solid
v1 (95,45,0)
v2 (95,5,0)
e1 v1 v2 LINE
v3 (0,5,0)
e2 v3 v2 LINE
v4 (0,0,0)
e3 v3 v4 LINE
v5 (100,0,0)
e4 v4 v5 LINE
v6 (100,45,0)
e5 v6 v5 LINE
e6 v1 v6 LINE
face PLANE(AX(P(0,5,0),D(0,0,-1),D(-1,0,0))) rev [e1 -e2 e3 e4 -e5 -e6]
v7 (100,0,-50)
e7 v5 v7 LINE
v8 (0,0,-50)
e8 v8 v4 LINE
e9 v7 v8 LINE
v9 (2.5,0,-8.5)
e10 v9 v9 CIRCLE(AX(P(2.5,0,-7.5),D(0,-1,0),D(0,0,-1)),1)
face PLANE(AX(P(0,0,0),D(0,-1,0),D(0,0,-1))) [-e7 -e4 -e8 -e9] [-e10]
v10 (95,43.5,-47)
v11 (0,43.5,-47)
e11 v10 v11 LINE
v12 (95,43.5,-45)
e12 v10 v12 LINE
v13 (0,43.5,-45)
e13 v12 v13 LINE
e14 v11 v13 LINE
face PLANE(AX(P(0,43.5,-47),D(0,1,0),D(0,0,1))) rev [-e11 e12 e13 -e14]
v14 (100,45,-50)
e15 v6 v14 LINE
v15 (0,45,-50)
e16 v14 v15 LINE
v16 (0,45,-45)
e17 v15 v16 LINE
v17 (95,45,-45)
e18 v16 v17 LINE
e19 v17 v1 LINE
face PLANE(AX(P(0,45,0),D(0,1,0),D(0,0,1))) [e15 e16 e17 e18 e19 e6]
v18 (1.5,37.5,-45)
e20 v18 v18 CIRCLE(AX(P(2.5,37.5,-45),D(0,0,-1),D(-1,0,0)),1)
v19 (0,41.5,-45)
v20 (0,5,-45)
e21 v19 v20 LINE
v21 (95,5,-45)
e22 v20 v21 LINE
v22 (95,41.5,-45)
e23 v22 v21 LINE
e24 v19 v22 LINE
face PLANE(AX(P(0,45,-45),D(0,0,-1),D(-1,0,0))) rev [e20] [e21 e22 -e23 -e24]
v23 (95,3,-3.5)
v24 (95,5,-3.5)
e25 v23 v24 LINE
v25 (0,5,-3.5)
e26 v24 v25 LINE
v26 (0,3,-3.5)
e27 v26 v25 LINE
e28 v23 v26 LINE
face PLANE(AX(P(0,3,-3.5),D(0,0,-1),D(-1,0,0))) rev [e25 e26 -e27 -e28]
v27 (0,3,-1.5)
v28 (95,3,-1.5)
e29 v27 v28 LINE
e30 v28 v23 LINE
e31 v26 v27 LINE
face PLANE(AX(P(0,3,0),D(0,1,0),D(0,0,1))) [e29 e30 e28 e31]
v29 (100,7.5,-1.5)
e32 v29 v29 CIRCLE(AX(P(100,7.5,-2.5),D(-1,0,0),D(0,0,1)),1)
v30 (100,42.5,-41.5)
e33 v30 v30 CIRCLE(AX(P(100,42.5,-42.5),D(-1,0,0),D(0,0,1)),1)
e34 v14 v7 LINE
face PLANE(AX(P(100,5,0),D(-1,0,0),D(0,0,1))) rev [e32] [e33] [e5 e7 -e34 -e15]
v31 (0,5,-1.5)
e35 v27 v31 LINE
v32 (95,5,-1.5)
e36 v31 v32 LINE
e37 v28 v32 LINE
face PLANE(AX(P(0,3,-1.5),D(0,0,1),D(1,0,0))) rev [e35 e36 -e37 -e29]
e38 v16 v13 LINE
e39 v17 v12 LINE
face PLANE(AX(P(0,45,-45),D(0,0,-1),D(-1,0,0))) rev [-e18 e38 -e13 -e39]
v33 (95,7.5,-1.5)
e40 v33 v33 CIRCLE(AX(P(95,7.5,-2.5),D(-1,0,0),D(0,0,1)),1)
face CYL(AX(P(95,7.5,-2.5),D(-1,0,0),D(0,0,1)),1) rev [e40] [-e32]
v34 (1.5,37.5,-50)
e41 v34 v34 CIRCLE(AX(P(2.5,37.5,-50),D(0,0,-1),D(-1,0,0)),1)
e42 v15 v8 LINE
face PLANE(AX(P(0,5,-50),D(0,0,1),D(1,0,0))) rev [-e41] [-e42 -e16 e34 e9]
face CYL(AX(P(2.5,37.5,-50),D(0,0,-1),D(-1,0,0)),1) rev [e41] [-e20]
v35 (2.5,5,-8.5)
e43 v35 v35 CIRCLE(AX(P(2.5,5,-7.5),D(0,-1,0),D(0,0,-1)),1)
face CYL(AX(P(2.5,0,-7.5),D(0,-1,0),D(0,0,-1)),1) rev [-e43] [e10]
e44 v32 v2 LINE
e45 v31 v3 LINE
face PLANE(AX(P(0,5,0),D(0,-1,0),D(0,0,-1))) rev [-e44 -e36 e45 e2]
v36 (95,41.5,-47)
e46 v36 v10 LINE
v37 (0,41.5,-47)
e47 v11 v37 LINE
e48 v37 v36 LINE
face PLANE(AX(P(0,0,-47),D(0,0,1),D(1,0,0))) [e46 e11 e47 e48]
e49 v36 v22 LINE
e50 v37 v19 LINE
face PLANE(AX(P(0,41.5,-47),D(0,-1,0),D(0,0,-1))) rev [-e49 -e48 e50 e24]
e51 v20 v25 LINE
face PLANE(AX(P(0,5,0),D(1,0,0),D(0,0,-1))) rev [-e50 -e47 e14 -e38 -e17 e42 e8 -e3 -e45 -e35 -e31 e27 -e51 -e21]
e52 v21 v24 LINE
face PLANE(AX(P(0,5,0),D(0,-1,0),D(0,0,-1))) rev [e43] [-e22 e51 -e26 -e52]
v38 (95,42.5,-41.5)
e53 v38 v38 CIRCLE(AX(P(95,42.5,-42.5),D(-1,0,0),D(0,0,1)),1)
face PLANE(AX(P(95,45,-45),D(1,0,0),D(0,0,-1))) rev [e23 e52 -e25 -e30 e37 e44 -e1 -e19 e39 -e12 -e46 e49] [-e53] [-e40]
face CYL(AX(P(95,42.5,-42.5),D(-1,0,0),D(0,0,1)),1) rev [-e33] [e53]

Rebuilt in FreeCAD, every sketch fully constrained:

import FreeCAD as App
import Part
import Sketcher

V = App.Vector

doc = App.newDocument("Part")
params = doc.addObject("Spreadsheet::Sheet", "Params")
for row, (alias, value) in enumerate([
    ("sketch1_width", "100 mm"),
    ("sketch1_height", "50 mm"),
    ("pad1_length", "5 mm"),
    ("sketch2_width", "95 mm"),
    ("sketch2_width2", "5 mm"),
    ("sketch2_height", "45 mm"),
    ("pad2_length", "40 mm"),
    ("sketch3_width", "95 mm"),
    ("sketch3_height", "2 mm"),
    ("pocket1_length", "2 mm"),
    ("sketch4_width", "95 mm"),
    ("sketch4_height", "2 mm"),
    ("pocket2_length", "2 mm"),
    ("sketch5_diameter", "2 mm"),
    ("hole_diameter", "2 mm"),
    ("sketch6_diameter", "2 mm"),
    ("hole2_diameter", "2 mm"),
    ("hole2_depth", "10 mm"),
    ("sketch7_diameter", "2 mm"),
    ("hole3_diameter", "2 mm"),
    ("hole3_depth", "10 mm"),
], start=1):
    params.set(f"A{row}", alias)
    params.set(f"B{row}", "=" + value)
    params.setAlias(f"B{row}", alias)

body = doc.addObject("PartDesign::Body", "Body")

sketch1 = doc.addObject("Sketcher::SketchObject", "Sketch")
body.addObject(sketch1)
sketch1.AttachmentSupport = (doc.XZ_Plane, [""])
sketch1.MapMode = "FlatFace"
sketch1.addGeometry(Part.LineSegment(V(0, -50, 0), V(0, 0, 0)), False)
sketch1.addGeometry(Part.LineSegment(V(0, 0, 0), V(100, 0, 0)), False)
sketch1.addGeometry(Part.LineSegment(V(100, 0, 0), V(100, -50, 0)), False)
sketch1.addGeometry(Part.LineSegment(V(100, -50, 0), V(0, -50, 0)), False)
sketch1.addConstraint(Sketcher.Constraint("Coincident", 0, 2, 1, 1))
sketch1.addConstraint(Sketcher.Constraint("Coincident", 1, 2, 2, 1))
sketch1.addConstraint(Sketcher.Constraint("Coincident", 2, 2, 3, 1))
sketch1.addConstraint(Sketcher.Constraint("Coincident", 3, 2, 0, 1))
sketch1.addConstraint(Sketcher.Constraint("Vertical", 0))
sketch1.addConstraint(Sketcher.Constraint("Horizontal", 1))
sketch1.addConstraint(Sketcher.Constraint("Vertical", 2))
sketch1.addConstraint(Sketcher.Constraint("Horizontal", 3))
sketch1.addConstraint(Sketcher.Constraint("Coincident", 0, 2, -1, 1))
sketch1.addConstraint(Sketcher.Constraint("DistanceX", 1, 1, 1, 2, 100.0))
sketch1.addConstraint(Sketcher.Constraint("DistanceY", 0, 1, 0, 2, 50.0))
sketch1.setExpression("Constraints[9]", "Params.sketch1_width")
sketch1.setExpression("Constraints[10]", "Params.sketch1_height")
pad1 = doc.addObject("PartDesign::Pad", "Pad")
body.addObject(pad1)
pad1.Profile = sketch1
pad1.setExpression("Length", "Params.pad1_length")
pad1.Reversed = True

sketch2 = doc.addObject("Sketcher::SketchObject", "Sketch001")
body.addObject(sketch2)
sketch2.AttachmentSupport = (doc.XZ_Plane, [""])
sketch2.MapMode = "FlatFace"
sketch2.AttachmentOffset = App.Placement(V(0, 0, -5), App.Rotation())
sketch2.addGeometry(Part.LineSegment(V(0, -45, 0), V(95, -45, 0)), False)
sketch2.addGeometry(Part.LineSegment(V(95, -45, 0), V(95, 0, 0)), False)
sketch2.addGeometry(Part.LineSegment(V(95, 0, 0), V(100, 0, 0)), False)
sketch2.addGeometry(Part.LineSegment(V(100, 0, 0), V(100, -50, 0)), False)
sketch2.addGeometry(Part.LineSegment(V(100, -50, 0), V(0, -50, 0)), False)
sketch2.addGeometry(Part.LineSegment(V(0, -50, 0), V(0, -45, 0)), False)
sketch2.addConstraint(Sketcher.Constraint("Coincident", 0, 2, 1, 1))
sketch2.addConstraint(Sketcher.Constraint("Coincident", 1, 2, 2, 1))
sketch2.addConstraint(Sketcher.Constraint("Coincident", 2, 2, 3, 1))
sketch2.addConstraint(Sketcher.Constraint("Coincident", 3, 2, 4, 1))
sketch2.addConstraint(Sketcher.Constraint("Coincident", 4, 2, 5, 1))
sketch2.addConstraint(Sketcher.Constraint("Coincident", 5, 2, 0, 1))
sketch2.addConstraint(Sketcher.Constraint("Horizontal", 0))
sketch2.addConstraint(Sketcher.Constraint("Vertical", 1))
sketch2.addConstraint(Sketcher.Constraint("Horizontal", 2))
sketch2.addConstraint(Sketcher.Constraint("Vertical", 3))
sketch2.addConstraint(Sketcher.Constraint("Horizontal", 4))
sketch2.addConstraint(Sketcher.Constraint("Vertical", 5))
sketch2.addConstraint(Sketcher.Constraint("PointOnObject", 1, 2, -1))
sketch2.addConstraint(Sketcher.Constraint("PointOnObject", 4, 2, -2))
sketch2.addConstraint(Sketcher.Constraint("Equal", 2, 5))
sketch2.addConstraint(Sketcher.Constraint("DistanceX", 0, 1, 0, 2, 95.0))
sketch2.addConstraint(Sketcher.Constraint("DistanceX", 2, 1, 2, 2, 5.0))
sketch2.addConstraint(Sketcher.Constraint("DistanceY", 1, 1, 1, 2, 45.0))
sketch2.setExpression("Constraints[15]", "Params.sketch2_width")
sketch2.setExpression("Constraints[16]", "Params.sketch2_width2")
sketch2.setExpression("Constraints[17]", "Params.sketch2_height")
pad2 = doc.addObject("PartDesign::Pad", "Pad001")
body.addObject(pad2)
pad2.Profile = sketch2
pad2.setExpression("Length", "Params.pad2_length")
pad2.Reversed = True

sketch3 = doc.addObject("Sketcher::SketchObject", "Sketch002")
body.addObject(sketch3)
sketch3.AttachmentSupport = (doc.XY_Plane, [""])
sketch3.MapMode = "FlatFace"
sketch3.AttachmentOffset = App.Placement(V(0, 0, -45), App.Rotation())
sketch3.addGeometry(Part.LineSegment(V(0, 43.5, 0), V(0, 41.5, 0)), False)
sketch3.addGeometry(Part.LineSegment(V(0, 41.5, 0), V(95, 41.5, 0)), False)
sketch3.addGeometry(Part.LineSegment(V(95, 41.5, 0), V(95, 43.5, 0)), False)
sketch3.addGeometry(Part.LineSegment(V(95, 43.5, 0), V(0, 43.5, 0)), False)
sketch3.addConstraint(Sketcher.Constraint("Coincident", 0, 2, 1, 1))
sketch3.addConstraint(Sketcher.Constraint("Coincident", 1, 2, 2, 1))
sketch3.addConstraint(Sketcher.Constraint("Coincident", 2, 2, 3, 1))
sketch3.addConstraint(Sketcher.Constraint("Coincident", 3, 2, 0, 1))
sketch3.addConstraint(Sketcher.Constraint("Vertical", 0))
sketch3.addConstraint(Sketcher.Constraint("Horizontal", 1))
sketch3.addConstraint(Sketcher.Constraint("Vertical", 2))
sketch3.addConstraint(Sketcher.Constraint("Horizontal", 3))
sketch3.addConstraint(Sketcher.Constraint("PointOnObject", 0, 2, -2))
sketch3.addConstraint(Sketcher.Constraint("DistanceX", 1, 1, 1, 2, 95.0))
sketch3.addConstraint(Sketcher.Constraint("DistanceY", 0, 2, 0, 1, 2.0))
sketch3.addConstraint(Sketcher.Constraint("DistanceY", -1, 1, 0, 2, 41.5))
sketch3.setExpression("Constraints[9]", "Params.sketch3_width")
sketch3.setExpression("Constraints[10]", "Params.sketch3_height")
pocket1 = doc.addObject("PartDesign::Pocket", "Pocket")
body.addObject(pocket1)
pocket1.Profile = sketch3
pocket1.setExpression("Length", "Params.pocket1_length")

sketch4 = doc.addObject("Sketcher::SketchObject", "Sketch003")
body.addObject(sketch4)
sketch4.AttachmentSupport = (doc.XZ_Plane, [""])
sketch4.MapMode = "FlatFace"
sketch4.AttachmentOffset = App.Placement(V(0, 0, -5), App.Rotation())
sketch4.addGeometry(Part.LineSegment(V(0, -3.5, 0), V(0, -1.5, 0)), False)
sketch4.addGeometry(Part.LineSegment(V(0, -1.5, 0), V(95, -1.5, 0)), False)
sketch4.addGeometry(Part.LineSegment(V(95, -1.5, 0), V(95, -3.5, 0)), False)
sketch4.addGeometry(Part.LineSegment(V(95, -3.5, 0), V(0, -3.5, 0)), False)
sketch4.addConstraint(Sketcher.Constraint("Coincident", 0, 2, 1, 1))
sketch4.addConstraint(Sketcher.Constraint("Coincident", 1, 2, 2, 1))
sketch4.addConstraint(Sketcher.Constraint("Coincident", 2, 2, 3, 1))
sketch4.addConstraint(Sketcher.Constraint("Coincident", 3, 2, 0, 1))
sketch4.addConstraint(Sketcher.Constraint("Vertical", 0))
sketch4.addConstraint(Sketcher.Constraint("Horizontal", 1))
sketch4.addConstraint(Sketcher.Constraint("Vertical", 2))
sketch4.addConstraint(Sketcher.Constraint("Horizontal", 3))
sketch4.addConstraint(Sketcher.Constraint("PointOnObject", 0, 2, -2))
sketch4.addConstraint(Sketcher.Constraint("DistanceX", 1, 1, 1, 2, 95.0))
sketch4.addConstraint(Sketcher.Constraint("DistanceY", 0, 1, 0, 2, 2.0))
sketch4.addConstraint(Sketcher.Constraint("DistanceY", 0, 2, -1, 1, 1.5))
sketch4.setExpression("Constraints[9]", "Params.sketch4_width")
sketch4.setExpression("Constraints[10]", "Params.sketch4_height")
pocket2 = doc.addObject("PartDesign::Pocket", "Pocket001")
body.addObject(pocket2)
pocket2.Profile = sketch4
pocket2.setExpression("Length", "Params.pocket2_length")
pocket2.Reversed = True

sketch5 = doc.addObject("Sketcher::SketchObject", "Sketch004")
body.addObject(sketch5)
sketch5.AttachmentSupport = (doc.YZ_Plane, [""])
sketch5.MapMode = "FlatFace"
sketch5.AttachmentOffset = App.Placement(V(0, 0, 95), App.Rotation())
sketch5.addGeometry(Part.Circle(V(42.5, -42.5, 0), V(0, 0, 1), 1), False)
sketch5.addGeometry(Part.Circle(V(7.5, -2.5, 0), V(0, 0, 1), 1), False)
sketch5.addConstraint(Sketcher.Constraint("Equal", 0, 1))
sketch5.addConstraint(Sketcher.Constraint("Diameter", 0, 2.0))
sketch5.addConstraint(Sketcher.Constraint("DistanceX", 1, 3, 0, 3, 35.0))
sketch5.addConstraint(Sketcher.Constraint("DistanceY", 0, 3, 1, 3, 40.0))
sketch5.addConstraint(Sketcher.Constraint("DistanceX", -1, 1, 0, 3, 42.5))
sketch5.addConstraint(Sketcher.Constraint("DistanceY", 0, 3, -1, 1, 42.5))
sketch5.setExpression("Constraints[1]", "Params.sketch5_diameter")
doc.recompute()
hole = doc.addObject("PartDesign::Hole", "Hole")
body.addObject(hole)
hole.Profile = sketch5
hole.ThreadType = "None"
hole.setExpression("Diameter", "Params.hole_diameter")
hole.DepthType = "ThroughAll"
hole.Reversed = True

sketch6 = doc.addObject("Sketcher::SketchObject", "Sketch005")
body.addObject(sketch6)
sketch6.AttachmentSupport = (doc.XY_Plane, [""])
sketch6.MapMode = "FlatFace"
sketch6.AttachmentOffset = App.Placement(V(0, 0, -50), App.Rotation())
sketch6.addGeometry(Part.Circle(V(2.5, 37.5, 0), V(0, 0, 1), 1), False)
sketch6.addConstraint(Sketcher.Constraint("Diameter", 0, 2.0))
sketch6.addConstraint(Sketcher.Constraint("DistanceX", -1, 1, 0, 3, 2.5))
sketch6.addConstraint(Sketcher.Constraint("DistanceY", -1, 1, 0, 3, 37.5))
sketch6.setExpression("Constraints[0]", "Params.sketch6_diameter")
doc.recompute()
hole2 = doc.addObject("PartDesign::Hole", "Hole001")
body.addObject(hole2)
hole2.Profile = sketch6
hole2.ThreadType = "None"
hole2.setExpression("Diameter", "Params.hole2_diameter")
hole2.DepthType = "Dimension"
hole2.setExpression("Depth", "Params.hole2_depth")
hole2.DrillPoint = "Angled"
hole2.DrillPointAngle = 118
hole2.Reversed = True

sketch7 = doc.addObject("Sketcher::SketchObject", "Sketch006")
body.addObject(sketch7)
sketch7.AttachmentSupport = (doc.XZ_Plane, [""])
sketch7.MapMode = "FlatFace"
sketch7.addGeometry(Part.Circle(V(2.5, -7.5, 0), V(0, 0, 1), 1), False)
sketch7.addConstraint(Sketcher.Constraint("Diameter", 0, 2.0))
sketch7.addConstraint(Sketcher.Constraint("DistanceX", -1, 1, 0, 3, 2.5))
sketch7.addConstraint(Sketcher.Constraint("DistanceY", 0, 3, -1, 1, 7.5))
sketch7.setExpression("Constraints[0]", "Params.sketch7_diameter")
doc.recompute()
hole3 = doc.addObject("PartDesign::Hole", "Hole002")
body.addObject(hole3)
hole3.Profile = sketch7
hole3.ThreadType = "None"
hole3.setExpression("Diameter", "Params.hole3_diameter")
hole3.DepthType = "Dimension"
hole3.setExpression("Depth", "Params.hole3_depth")
hole3.DrillPoint = "Angled"
hole3.DrillPointAngle = 118

doc.recompute()
